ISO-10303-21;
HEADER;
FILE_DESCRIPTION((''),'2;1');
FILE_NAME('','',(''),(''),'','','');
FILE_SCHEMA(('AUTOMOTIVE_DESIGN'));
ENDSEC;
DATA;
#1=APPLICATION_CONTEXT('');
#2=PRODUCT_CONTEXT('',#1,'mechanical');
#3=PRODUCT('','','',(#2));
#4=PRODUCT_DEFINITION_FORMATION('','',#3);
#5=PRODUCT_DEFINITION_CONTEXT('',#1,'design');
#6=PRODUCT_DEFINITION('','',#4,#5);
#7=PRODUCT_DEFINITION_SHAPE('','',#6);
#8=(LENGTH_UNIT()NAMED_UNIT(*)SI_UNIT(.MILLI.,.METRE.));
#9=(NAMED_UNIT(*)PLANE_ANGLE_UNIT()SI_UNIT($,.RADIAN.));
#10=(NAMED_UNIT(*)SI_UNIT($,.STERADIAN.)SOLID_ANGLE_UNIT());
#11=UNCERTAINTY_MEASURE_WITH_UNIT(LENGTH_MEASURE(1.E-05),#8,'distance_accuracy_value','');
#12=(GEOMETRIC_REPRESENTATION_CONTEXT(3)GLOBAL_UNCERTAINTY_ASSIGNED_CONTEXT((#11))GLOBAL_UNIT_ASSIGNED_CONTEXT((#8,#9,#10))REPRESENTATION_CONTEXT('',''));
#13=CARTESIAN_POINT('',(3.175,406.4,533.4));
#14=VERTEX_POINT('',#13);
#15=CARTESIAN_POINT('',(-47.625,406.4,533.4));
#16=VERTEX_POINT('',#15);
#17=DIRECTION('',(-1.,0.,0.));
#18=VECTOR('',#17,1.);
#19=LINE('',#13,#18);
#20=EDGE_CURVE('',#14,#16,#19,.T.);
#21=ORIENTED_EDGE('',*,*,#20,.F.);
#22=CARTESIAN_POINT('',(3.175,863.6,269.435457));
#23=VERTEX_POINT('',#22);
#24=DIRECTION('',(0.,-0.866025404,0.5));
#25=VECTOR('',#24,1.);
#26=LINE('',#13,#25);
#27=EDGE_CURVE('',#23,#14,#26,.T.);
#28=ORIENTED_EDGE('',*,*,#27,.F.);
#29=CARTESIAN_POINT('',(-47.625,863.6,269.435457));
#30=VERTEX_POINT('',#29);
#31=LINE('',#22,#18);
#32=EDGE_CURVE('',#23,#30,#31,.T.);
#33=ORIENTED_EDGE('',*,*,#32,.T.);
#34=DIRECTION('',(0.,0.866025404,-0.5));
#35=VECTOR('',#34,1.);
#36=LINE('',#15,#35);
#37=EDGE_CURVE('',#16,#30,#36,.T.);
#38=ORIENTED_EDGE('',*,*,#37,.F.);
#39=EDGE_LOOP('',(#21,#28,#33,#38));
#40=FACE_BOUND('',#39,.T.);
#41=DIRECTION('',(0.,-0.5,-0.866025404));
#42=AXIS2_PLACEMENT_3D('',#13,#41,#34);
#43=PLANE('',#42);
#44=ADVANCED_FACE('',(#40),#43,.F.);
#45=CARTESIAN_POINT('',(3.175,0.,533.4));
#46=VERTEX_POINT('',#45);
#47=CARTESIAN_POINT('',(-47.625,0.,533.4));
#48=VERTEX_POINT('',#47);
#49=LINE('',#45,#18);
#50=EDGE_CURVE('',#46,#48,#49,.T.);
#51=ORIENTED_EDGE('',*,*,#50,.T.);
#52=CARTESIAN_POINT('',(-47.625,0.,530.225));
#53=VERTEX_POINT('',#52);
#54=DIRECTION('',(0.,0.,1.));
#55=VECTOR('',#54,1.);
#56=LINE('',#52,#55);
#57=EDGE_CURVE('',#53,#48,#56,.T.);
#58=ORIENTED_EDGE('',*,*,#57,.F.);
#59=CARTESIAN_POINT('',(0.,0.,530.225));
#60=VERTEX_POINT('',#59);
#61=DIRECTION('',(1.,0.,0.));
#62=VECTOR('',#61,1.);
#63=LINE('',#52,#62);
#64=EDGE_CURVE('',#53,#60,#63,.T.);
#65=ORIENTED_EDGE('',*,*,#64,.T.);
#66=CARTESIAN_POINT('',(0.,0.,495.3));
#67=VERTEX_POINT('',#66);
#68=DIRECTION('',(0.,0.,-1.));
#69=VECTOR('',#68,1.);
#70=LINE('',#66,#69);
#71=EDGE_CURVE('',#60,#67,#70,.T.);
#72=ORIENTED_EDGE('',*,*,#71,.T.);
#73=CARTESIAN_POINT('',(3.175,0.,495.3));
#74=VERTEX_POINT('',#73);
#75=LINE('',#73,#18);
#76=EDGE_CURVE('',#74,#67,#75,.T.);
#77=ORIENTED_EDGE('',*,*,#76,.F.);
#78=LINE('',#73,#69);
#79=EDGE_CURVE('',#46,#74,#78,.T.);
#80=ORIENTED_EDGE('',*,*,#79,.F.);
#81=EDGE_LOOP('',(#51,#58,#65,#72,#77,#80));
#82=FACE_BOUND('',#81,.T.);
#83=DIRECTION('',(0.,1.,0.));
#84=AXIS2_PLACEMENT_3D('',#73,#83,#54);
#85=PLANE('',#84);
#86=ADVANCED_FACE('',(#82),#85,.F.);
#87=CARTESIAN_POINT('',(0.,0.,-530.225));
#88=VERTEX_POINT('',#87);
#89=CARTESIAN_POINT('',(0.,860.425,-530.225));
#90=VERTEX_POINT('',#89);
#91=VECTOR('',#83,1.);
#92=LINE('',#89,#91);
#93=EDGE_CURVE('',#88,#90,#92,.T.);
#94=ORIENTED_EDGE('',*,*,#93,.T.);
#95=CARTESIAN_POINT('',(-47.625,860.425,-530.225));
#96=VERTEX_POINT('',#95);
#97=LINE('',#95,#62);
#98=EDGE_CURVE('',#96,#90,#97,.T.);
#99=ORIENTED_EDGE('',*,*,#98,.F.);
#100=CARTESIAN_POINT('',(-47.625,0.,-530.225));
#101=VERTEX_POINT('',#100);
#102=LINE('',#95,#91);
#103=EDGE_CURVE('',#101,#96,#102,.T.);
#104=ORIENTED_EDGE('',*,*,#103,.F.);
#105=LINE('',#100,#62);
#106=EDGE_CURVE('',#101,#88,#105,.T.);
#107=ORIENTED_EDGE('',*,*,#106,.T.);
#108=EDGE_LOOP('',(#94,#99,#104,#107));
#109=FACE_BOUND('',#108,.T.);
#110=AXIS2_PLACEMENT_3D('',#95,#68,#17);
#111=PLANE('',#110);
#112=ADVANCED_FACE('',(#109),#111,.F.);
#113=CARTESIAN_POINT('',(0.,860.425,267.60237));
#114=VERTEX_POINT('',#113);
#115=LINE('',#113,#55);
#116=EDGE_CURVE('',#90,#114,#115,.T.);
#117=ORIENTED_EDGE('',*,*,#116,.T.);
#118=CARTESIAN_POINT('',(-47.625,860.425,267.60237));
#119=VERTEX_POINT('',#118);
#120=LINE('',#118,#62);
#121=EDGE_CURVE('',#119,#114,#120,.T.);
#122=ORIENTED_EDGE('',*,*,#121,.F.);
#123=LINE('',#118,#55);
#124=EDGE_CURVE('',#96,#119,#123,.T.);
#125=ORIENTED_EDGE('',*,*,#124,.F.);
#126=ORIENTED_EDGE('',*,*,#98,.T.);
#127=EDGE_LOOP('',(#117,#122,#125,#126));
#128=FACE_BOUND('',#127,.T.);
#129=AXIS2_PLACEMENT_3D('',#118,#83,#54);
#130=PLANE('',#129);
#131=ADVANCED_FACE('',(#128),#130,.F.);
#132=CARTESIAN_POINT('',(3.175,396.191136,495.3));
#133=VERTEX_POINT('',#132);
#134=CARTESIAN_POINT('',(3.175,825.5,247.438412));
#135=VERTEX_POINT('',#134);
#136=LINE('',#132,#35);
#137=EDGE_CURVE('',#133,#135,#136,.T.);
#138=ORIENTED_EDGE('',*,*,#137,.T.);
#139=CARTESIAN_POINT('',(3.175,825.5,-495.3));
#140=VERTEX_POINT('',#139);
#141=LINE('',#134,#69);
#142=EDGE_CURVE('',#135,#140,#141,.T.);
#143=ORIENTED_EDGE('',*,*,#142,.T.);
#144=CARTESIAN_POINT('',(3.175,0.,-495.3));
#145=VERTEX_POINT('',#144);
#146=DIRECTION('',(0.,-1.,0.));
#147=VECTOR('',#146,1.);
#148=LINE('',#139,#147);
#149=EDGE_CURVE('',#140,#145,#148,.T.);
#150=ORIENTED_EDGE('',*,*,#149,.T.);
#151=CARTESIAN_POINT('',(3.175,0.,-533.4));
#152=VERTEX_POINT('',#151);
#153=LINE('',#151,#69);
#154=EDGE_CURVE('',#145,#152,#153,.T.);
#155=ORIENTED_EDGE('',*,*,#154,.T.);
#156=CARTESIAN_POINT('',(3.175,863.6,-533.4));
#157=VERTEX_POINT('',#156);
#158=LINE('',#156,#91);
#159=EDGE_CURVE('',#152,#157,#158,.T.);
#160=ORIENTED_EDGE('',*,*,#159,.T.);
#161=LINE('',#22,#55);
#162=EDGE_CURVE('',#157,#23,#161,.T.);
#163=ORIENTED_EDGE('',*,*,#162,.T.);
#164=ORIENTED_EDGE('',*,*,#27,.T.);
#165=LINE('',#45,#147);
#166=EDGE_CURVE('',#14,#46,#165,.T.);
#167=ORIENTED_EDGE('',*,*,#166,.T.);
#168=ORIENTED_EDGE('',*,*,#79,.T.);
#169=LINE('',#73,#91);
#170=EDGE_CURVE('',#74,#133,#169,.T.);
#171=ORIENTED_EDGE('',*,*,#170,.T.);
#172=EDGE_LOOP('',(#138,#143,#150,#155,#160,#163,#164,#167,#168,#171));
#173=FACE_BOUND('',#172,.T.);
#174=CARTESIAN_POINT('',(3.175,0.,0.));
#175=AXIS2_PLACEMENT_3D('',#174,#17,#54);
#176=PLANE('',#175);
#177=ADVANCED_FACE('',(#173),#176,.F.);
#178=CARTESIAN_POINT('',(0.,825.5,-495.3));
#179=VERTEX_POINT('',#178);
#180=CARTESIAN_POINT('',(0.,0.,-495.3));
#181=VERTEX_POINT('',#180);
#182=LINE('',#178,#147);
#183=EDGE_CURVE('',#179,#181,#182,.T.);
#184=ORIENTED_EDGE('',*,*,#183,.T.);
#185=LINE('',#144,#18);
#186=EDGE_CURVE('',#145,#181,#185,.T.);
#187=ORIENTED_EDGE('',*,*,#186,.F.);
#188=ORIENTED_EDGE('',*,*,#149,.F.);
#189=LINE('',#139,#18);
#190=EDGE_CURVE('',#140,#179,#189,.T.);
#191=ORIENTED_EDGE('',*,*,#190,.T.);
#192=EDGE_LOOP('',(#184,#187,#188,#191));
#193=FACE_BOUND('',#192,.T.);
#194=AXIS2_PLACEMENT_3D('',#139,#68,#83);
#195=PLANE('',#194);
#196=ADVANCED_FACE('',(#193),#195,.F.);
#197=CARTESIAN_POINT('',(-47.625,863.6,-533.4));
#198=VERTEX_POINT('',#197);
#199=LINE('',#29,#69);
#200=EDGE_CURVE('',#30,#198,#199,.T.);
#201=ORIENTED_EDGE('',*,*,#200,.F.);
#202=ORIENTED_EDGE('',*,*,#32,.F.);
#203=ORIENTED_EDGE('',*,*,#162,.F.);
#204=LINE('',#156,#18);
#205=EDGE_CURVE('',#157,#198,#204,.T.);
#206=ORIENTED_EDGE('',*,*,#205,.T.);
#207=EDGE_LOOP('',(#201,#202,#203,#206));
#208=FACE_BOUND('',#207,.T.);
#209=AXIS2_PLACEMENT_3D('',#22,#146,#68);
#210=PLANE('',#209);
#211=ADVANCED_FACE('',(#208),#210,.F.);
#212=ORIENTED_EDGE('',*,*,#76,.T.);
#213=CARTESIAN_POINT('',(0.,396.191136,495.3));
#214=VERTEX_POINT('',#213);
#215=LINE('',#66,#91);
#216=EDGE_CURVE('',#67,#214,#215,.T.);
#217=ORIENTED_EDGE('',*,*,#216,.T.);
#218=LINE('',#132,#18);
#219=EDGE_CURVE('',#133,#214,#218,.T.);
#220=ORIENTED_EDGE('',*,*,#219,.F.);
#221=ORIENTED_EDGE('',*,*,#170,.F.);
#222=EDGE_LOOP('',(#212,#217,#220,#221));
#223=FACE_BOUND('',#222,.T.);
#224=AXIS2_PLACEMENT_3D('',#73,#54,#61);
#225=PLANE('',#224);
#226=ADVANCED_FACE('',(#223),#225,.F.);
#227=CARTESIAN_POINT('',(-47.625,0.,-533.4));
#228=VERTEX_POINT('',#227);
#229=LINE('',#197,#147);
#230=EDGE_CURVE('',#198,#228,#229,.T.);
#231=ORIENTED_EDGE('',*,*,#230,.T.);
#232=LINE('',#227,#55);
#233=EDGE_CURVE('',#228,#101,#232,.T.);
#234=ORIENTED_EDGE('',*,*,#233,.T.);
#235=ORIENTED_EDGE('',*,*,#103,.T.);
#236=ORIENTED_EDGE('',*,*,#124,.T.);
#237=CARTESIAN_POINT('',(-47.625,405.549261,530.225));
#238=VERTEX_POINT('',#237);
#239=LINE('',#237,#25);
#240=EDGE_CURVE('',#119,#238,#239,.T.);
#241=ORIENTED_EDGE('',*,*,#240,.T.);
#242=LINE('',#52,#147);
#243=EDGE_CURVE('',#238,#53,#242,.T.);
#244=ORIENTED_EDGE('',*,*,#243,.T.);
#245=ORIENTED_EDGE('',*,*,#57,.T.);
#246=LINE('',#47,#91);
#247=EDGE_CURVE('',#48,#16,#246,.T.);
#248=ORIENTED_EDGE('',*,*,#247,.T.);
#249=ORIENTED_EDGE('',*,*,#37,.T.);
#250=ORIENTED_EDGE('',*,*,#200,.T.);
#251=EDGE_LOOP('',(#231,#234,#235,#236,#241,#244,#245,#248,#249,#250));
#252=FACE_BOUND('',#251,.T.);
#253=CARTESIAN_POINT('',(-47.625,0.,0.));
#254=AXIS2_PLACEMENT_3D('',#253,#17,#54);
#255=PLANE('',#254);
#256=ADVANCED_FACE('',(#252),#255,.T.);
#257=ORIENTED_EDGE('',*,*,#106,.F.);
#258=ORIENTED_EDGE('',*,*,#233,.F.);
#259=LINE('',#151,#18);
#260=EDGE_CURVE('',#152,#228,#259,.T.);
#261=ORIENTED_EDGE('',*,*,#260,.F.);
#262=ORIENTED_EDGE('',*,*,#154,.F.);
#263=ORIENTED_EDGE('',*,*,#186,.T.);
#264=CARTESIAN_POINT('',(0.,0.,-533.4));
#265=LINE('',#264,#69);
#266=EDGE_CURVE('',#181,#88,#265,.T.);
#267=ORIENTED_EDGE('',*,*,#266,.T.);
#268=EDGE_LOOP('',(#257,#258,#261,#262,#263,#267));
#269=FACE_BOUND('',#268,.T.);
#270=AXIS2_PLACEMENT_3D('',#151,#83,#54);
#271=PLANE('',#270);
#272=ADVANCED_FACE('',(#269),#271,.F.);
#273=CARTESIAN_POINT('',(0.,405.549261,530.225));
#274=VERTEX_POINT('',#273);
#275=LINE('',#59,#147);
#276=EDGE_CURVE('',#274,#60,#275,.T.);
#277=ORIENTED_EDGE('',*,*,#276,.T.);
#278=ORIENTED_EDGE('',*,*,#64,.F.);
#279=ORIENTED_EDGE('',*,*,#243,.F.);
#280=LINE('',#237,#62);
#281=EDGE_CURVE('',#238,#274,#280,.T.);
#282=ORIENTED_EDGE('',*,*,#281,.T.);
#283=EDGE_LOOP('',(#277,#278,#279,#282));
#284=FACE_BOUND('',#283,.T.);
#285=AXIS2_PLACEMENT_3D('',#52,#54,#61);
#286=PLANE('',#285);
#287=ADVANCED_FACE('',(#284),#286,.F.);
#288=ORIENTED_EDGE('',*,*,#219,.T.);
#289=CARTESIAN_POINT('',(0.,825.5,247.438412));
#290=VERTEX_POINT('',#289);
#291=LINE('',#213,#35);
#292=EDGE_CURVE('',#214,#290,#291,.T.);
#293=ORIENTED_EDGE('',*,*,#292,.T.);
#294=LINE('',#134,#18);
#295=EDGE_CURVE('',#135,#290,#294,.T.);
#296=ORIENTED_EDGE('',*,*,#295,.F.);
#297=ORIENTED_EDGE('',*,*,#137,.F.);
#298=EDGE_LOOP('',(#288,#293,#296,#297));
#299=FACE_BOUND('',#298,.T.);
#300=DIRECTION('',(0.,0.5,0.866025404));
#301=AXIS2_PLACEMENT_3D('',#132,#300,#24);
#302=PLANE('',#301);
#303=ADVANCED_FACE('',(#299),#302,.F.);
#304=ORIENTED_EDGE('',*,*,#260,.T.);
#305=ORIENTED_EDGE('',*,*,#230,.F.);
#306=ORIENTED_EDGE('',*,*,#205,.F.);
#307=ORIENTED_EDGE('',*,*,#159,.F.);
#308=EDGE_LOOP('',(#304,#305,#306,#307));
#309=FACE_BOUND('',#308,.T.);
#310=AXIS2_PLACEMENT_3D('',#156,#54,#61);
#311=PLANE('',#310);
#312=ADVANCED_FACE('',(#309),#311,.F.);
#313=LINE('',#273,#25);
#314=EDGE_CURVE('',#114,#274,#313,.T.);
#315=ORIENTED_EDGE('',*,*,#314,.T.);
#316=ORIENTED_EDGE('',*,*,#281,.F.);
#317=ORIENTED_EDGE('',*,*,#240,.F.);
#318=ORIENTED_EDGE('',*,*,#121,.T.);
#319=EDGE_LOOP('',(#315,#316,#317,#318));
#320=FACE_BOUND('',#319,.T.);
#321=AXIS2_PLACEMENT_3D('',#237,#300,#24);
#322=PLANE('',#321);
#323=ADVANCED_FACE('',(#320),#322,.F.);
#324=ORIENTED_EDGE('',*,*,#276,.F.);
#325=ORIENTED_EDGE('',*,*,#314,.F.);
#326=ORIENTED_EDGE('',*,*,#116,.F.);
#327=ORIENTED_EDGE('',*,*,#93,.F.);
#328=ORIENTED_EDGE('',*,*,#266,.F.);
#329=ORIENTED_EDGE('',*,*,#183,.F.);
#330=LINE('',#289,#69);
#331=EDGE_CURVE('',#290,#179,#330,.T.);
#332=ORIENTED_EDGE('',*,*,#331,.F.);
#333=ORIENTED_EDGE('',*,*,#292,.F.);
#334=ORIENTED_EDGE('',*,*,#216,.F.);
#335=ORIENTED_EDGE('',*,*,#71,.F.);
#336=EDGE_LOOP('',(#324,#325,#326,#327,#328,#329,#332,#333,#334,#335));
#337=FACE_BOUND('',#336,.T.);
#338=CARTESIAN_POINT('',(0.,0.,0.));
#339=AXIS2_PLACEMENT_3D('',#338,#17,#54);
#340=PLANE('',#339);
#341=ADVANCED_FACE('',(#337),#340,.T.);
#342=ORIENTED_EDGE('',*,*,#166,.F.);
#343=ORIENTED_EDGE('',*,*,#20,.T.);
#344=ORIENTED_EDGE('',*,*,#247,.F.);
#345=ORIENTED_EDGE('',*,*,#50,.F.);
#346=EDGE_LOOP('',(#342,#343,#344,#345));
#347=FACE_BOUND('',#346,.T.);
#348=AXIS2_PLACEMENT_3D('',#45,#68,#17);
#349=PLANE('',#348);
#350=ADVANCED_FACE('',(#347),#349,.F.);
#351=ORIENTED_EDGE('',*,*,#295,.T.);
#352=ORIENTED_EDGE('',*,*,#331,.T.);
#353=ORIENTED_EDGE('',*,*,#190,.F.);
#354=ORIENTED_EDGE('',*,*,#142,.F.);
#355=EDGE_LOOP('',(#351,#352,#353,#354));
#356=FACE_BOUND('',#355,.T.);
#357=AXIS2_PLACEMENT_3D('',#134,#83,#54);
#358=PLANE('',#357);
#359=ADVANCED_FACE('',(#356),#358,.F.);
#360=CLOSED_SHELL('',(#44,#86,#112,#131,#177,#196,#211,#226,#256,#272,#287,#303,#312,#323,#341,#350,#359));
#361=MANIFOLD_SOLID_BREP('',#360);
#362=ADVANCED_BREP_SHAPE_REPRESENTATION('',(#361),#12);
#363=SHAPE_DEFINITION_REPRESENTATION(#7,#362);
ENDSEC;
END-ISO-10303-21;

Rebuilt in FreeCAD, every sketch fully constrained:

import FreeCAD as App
import Part
import Sketcher
from FreeCAD import Vector
Q = App.Units.Quantity

doc = App.newDocument("Part")
body = doc.addObject("PartDesign::Body", "Body")

# Sketch on YZ plane
sketch1 = doc.addObject("Sketcher::SketchObject", "Sketch")
body.addObject(sketch1)
sketch1.AttachmentSupport = (doc.YZ_Plane, [""])
sketch1.MapMode = "FlatFace"
sketch1.addGeometry([
    Part.LineSegment(Vector(0, 495, 0), Vector(396, 495, 0)),  # 0
    Part.LineSegment(Vector(396, 495, 0), Vector(826, 247, 0)),  # 1
    Part.LineSegment(Vector(826, 247, 0), Vector(826, -495, 0)),  # 2
    Part.LineSegment(Vector(826, -495, 0), Vector(0, -495, 0)),  # 3
    Part.LineSegment(Vector(0, -495, 0), Vector(0, -533, 0)),  # 4
    Part.LineSegment(Vector(0, -533, 0), Vector(864, -533, 0)),  # 5
    Part.LineSegment(Vector(864, -533, 0), Vector(864, 269, 0)),  # 6
    Part.LineSegment(Vector(864, 269, 0), Vector(406, 533, 0)),  # 7
    Part.LineSegment(Vector(406, 533, 0), Vector(0, 533, 0)),  # 8
    Part.LineSegment(Vector(0, 533, 0), Vector(0, 495, 0)),  # 9
], False)
sketch1.addConstraint([
    Sketcher.Constraint("Coincident", 0, 2, 1, 1),
    Sketcher.Constraint("Coincident", 1, 2, 2, 1),
    Sketcher.Constraint("Coincident", 2, 2, 3, 1),
    Sketcher.Constraint("Coincident", 3, 2, 4, 1),
    Sketcher.Constraint("Coincident", 4, 2, 5, 1),
    Sketcher.Constraint("Coincident", 5, 2, 6, 1),
    Sketcher.Constraint("Coincident", 6, 2, 7, 1),
    Sketcher.Constraint("Coincident", 7, 2, 8, 1),
    Sketcher.Constraint("Coincident", 8, 2, 9, 1),
    Sketcher.Constraint("Coincident", 9, 2, 0, 1),
    Sketcher.Constraint("Horizontal", 0),
    Sketcher.Constraint("Vertical", 2),
    Sketcher.Constraint("Horizontal", 3),
    Sketcher.Constraint("Vertical", 4),
    Sketcher.Constraint("Horizontal", 5),
    Sketcher.Constraint("Vertical", 6),
    Sketcher.Constraint("Horizontal", 8),
    Sketcher.Constraint("Vertical", 9),
    Sketcher.Constraint("Symmetric", 4, 2, 8, 2, -1, 1),
    Sketcher.Constraint("Symmetric", 3, 2, 9, 2, -1),
    Sketcher.Constraint("Parallel", 1, 7),
    Sketcher.Constraint("DistanceX", 5, 1, 5, 2, Q("34 in")),
    Sketcher.Constraint("DistanceX", 8, 2, 8, 1, Q("16 in")),
    Sketcher.Constraint("DistanceX", 3, 2, 3, 1, Q("32.5 in")),
    Sketcher.Constraint("DistanceY", 4, 2, 4, 1, Q("1.5 in")),
    Sketcher.Constraint("DistanceY", 4, 2, -1, 1, Q("21 in")),
    Sketcher.Constraint("Angle", 1, Q("-30 deg")),
    Sketcher.Constraint("DistanceY", 2, 2, 2, 1, Q("742.738412 mm")),
])
pad1 = doc.addObject("PartDesign::Pad", "Pad")
body.addObject(pad1)
pad1.Profile = sketch1
pad1.Length = Q("0.125 in")

# Sketch on YZ plane
sketch2 = doc.addObject("Sketcher::SketchObject", "Sketch001")
body.addObject(sketch2)
sketch2.AttachmentSupport = (doc.YZ_Plane, [""])
sketch2.MapMode = "FlatFace"
sketch2.addGeometry([
    Part.LineSegment(Vector(405.5, 530.2, 0), Vector(0, 530.2, 0)),  # 0
    Part.LineSegment(Vector(0, 530.2, 0), Vector(0, 533.4, 0)),  # 1
    Part.LineSegment(Vector(0, 533.4, 0), Vector(406.4, 533.4, 0)),  # 2
    Part.LineSegment(Vector(406.4, 533.4, 0), Vector(863.6, 269.4, 0)),  # 3
    Part.LineSegment(Vector(863.6, 269.4, 0), Vector(863.6, -533.4, 0)),  # 4
    Part.LineSegment(Vector(863.6, -533.4, 0), Vector(0, -533.4, 0)),  # 5
    Part.LineSegment(Vector(0, -533.4, 0), Vector(0, -530.2, 0)),  # 6
    Part.LineSegment(Vector(0, -530.2, 0), Vector(860.4, -530.2, 0)),  # 7
    Part.LineSegment(Vector(860.4, -530.2, 0), Vector(860.4, 267.6, 0)),  # 8
    Part.LineSegment(Vector(860.4, 267.6, 0), Vector(405.5, 530.2, 0)),  # 9
], False)
sketch2.addConstraint([
    Sketcher.Constraint("Coincident", 0, 2, 1, 1),
    Sketcher.Constraint("Coincident", 1, 2, 2, 1),
    Sketcher.Constraint("Coincident", 2, 2, 3, 1),
    Sketcher.Constraint("Coincident", 3, 2, 4, 1),
    Sketcher.Constraint("Coincident", 4, 2, 5, 1),
    Sketcher.Constraint("Coincident", 5, 2, 6, 1),
    Sketcher.Constraint("Coincident", 6, 2, 7, 1),
    Sketcher.Constraint("Coincident", 7, 2, 8, 1),
    Sketcher.Constraint("Coincident", 8, 2, 9, 1),
    Sketcher.Constraint("Coincident", 9, 2, 0, 1),
    Sketcher.Constraint("Horizontal", 0),
    Sketcher.Constraint("Vertical", 1),
    Sketcher.Constraint("Horizontal", 2),
    Sketcher.Constraint("Vertical", 4),
    Sketcher.Constraint("Horizontal", 5),
    Sketcher.Constraint("Vertical", 6),
    Sketcher.Constraint("Horizontal", 7),
    Sketcher.Constraint("Vertical", 8),
    Sketcher.Constraint("Symmetric", 1, 2, 5, 2, -1, 1),
    Sketcher.Constraint("Symmetric", 0, 2, 6, 2, -1),
    Sketcher.Constraint("Parallel", 3, 9),
    Sketcher.Constraint("DistanceX", 2, 1, 2, 2, Q("16 in")),
    Sketcher.Constraint("DistanceX", 5, 2, 5, 1, Q("34 in")),
    Sketcher.Constraint("DistanceY", -1, 1, 1, 2, Q("21 in")),
    Sketcher.Constraint("Angle", 3, Q("-30 deg")),
    Sketcher.Constraint("DistanceX", 7, 1, 7, 2, Q("33.875 in")),
    Sketcher.Constraint("DistanceY", 1, 1, 1, 2, Q("0.125 in")),
    Sketcher.Constraint("DistanceX", 0, 2, 0, 1, Q("405.549261 mm")),
])
pad2 = doc.addObject("PartDesign::Pad", "Pad001")
body.addObject(pad2)
pad2.Profile = sketch2
pad2.Length = Q("1.875 in")
pad2.Reversed = True

doc.recompute()
